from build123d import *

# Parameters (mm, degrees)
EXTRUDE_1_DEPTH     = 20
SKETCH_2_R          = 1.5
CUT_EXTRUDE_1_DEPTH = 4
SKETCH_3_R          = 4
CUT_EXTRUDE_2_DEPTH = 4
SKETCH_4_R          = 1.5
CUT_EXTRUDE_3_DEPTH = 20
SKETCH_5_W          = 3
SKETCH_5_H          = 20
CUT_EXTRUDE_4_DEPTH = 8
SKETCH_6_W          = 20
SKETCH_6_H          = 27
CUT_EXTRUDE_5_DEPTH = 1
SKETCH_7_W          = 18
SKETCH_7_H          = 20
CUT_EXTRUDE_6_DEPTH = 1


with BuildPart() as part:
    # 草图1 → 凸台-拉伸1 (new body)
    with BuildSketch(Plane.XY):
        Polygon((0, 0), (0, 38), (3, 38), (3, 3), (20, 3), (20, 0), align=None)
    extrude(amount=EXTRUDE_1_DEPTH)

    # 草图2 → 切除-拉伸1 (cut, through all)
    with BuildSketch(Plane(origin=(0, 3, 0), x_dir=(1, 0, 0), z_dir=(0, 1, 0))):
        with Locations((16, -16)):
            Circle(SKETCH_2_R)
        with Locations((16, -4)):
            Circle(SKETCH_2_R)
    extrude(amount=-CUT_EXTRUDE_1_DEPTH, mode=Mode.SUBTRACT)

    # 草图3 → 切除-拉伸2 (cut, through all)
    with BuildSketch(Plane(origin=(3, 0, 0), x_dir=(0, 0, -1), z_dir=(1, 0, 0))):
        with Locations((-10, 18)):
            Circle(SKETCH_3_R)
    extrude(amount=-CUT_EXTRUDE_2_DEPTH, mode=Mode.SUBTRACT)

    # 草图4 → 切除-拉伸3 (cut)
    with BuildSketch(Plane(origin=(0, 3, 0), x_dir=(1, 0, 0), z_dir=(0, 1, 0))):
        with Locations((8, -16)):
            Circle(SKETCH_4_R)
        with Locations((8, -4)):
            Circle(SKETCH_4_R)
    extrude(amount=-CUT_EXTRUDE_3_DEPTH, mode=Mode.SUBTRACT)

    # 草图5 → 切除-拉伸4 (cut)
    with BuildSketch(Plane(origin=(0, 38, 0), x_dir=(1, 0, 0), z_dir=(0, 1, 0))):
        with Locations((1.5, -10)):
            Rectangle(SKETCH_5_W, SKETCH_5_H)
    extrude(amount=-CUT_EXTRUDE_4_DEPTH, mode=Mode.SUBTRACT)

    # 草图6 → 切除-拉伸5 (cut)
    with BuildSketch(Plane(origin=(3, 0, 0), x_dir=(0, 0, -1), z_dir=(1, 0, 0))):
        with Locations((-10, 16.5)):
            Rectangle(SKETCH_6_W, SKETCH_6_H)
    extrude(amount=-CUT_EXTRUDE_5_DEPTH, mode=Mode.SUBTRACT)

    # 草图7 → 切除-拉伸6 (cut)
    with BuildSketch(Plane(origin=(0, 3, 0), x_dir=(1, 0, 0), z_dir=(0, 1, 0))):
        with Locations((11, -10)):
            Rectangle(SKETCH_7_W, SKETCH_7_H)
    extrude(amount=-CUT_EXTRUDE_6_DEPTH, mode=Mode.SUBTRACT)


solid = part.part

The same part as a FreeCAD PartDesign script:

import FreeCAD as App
import Part
import Sketcher


def add_polygon(sketch, points):
    """Adds a closed chain of lines whose ends are joined by coincident constraints."""
    first, n = sketch.GeometryCount, len(points)
    for a, b in zip(points, points[1:] + points[:1]):
        sketch.addGeometry(Part.LineSegment(App.Vector(*a, 0), App.Vector(*b, 0)), False)
    for i in range(n):
        sketch.addConstraint(Sketcher.Constraint("Coincident", first + i, 2, first + (i + 1) % n, 1))

doc = App.newDocument("Part")
body = doc.addObject("PartDesign::Body", "Body")

sketch1 = body.newObject("Sketcher::SketchObject", "Sketch")
sketch1.AttachmentSupport = (doc.getObject("XY_Plane"), [""])
sketch1.MapMode = "FlatFace"
add_polygon(sketch1, [(0, 38), (0, 0), (20, 0), (20, 3), (3, 3), (3, 38)])
sketch1.addConstraint([
    Sketcher.Constraint("Vertical", 0),
    Sketcher.Constraint("Horizontal", 1),
    Sketcher.Constraint("Vertical", 2),
    Sketcher.Constraint("Horizontal", 3),
    Sketcher.Constraint("Vertical", 4),
    Sketcher.Constraint("Horizontal", 5),
    Sketcher.Constraint("Coincident", 0, 2, -1, 1),
    Sketcher.Constraint("Equal", 5, 2),
    Sketcher.Constraint("DistanceX", 1, 1, 1, 2, 20.0),
    Sketcher.Constraint("DistanceX", 3, 2, 3, 1, 17.0),
    Sketcher.Constraint("DistanceY", 0, 2, 0, 1, 38.0),
])
pad1 = body.newObject("PartDesign::Pad", "Pad")
pad1.Profile = sketch1
pad1.Length = 20

sketch2 = body.newObject("Sketcher::SketchObject", "Sketch001")
sketch2.AttachmentSupport = (doc.getObject("XZ_Plane"), [""])
sketch2.MapMode = "FlatFace"
sketch2.AttachmentOffset = App.Placement(App.Vector(0, 0, -3), App.Rotation())
sketch2.addGeometry([
    Part.Circle(App.Vector(16, 16, 0), App.Vector(0, 0, 1), 1.5),
    Part.Circle(App.Vector(16, 4, 0), App.Vector(0, 0, 1), 1.5),
], False)
sketch2.addConstraint([
    Sketcher.Constraint("Equal", 0, 1),
    Sketcher.Constraint("Vertical", 0, 3, 1, 3),
    Sketcher.Constraint("Diameter", 0, 3.0),
    Sketcher.Constraint("DistanceX", -1, 1, 0, 3, 16.0),
    Sketcher.Constraint("DistanceY", -1, 1, 0, 3, 16.0),
    Sketcher.Constraint("DistanceY", -1, 1, 1, 3, 4.0),
])
pocket1 = body.newObject("PartDesign::Pocket", "Pocket")
pocket1.Profile = sketch2
pocket1.Type = "ThroughAll"
pocket1.Reversed = True

sketch3 = body.newObject("Sketcher::SketchObject", "Sketch002")
sketch3.AttachmentSupport = (doc.getObject("YZ_Plane"), [""])
sketch3.MapMode = "FlatFace"
sketch3.AttachmentOffset = App.Placement(App.Vector(0, 0, 3), App.Rotation())
sketch3.addGeometry(Part.Circle(App.Vector(18, 10, 0), App.Vector(0, 0, 1), 4), False)
sketch3.addConstraint([
    Sketcher.Constraint("Diameter", 0, 8.0),
    Sketcher.Constraint("DistanceX", -1, 1, 0, 3, 18.0),
    Sketcher.Constraint("DistanceY", -1, 1, 0, 3, 10.0),
])
pocket2 = body.newObject("PartDesign::Pocket", "Pocket001")
pocket2.Profile = sketch3
pocket2.Type = "ThroughAll"

sketch4 = body.newObject("Sketcher::SketchObject", "Sketch003")
sketch4.AttachmentSupport = (doc.getObject("XZ_Plane"), [""])
sketch4.MapMode = "FlatFace"
sketch4.AttachmentOffset = App.Placement(App.Vector(0, 0, -3), App.Rotation())
sketch4.addGeometry([
    Part.Circle(App.Vector(8, 16, 0), App.Vector(0, 0, 1), 1.5),
    Part.Circle(App.Vector(8, 4, 0), App.Vector(0, 0, 1), 1.5),
], False)
sketch4.addConstraint([
    Sketcher.Constraint("Equal", 0, 1),
    Sketcher.Constraint("Vertical", 0, 3, 1, 3),
    Sketcher.Constraint("Diameter", 0, 3.0),
    Sketcher.Constraint("DistanceX", -1, 1, 0, 3, 8.0),
    Sketcher.Constraint("DistanceY", -1, 1, 0, 3, 16.0),
    Sketcher.Constraint("DistanceY", -1, 1, 1, 3, 4.0),
])
pocket3 = body.newObject("PartDesign::Pocket", "Pocket002")
pocket3.Profile = sketch4
pocket3.Length = 20
pocket3.Reversed = True

sketch5 = body.newObject("Sketcher::SketchObject", "Sketch004")
sketch5.AttachmentSupport = (doc.getObject("XZ_Plane"), [""])
sketch5.MapMode = "FlatFace"
sketch5.AttachmentOffset = App.Placement(App.Vector(0, 0, -38), App.Rotation())
add_polygon(sketch5, [(0, 0), (0, 20), (3, 20), (3, 0)])
sketch5.addConstraint([
    Sketcher.Constraint("Vertical", 0),
    Sketcher.Constraint("Horizontal", 1),
    Sketcher.Constraint("Vertical", 2),
    Sketcher.Constraint("Horizontal", 3),
    Sketcher.Constraint("Coincident", 3, 2, -1, 1),
    Sketcher.Constraint("DistanceX", 1, 1, 1, 2, 3.0),
    Sketcher.Constraint("DistanceY", 0, 1, 0, 2, 20.0),
])
pocket4 = body.newObject("PartDesign::Pocket", "Pocket003")
pocket4.Profile = sketch5
pocket4.Length = 8
pocket4.Reversed = True

sketch6 = body.newObject("Sketcher::SketchObject", "Sketch005")
sketch6.AttachmentSupport = (doc.getObject("YZ_Plane"), [""])
sketch6.MapMode = "FlatFace"
sketch6.AttachmentOffset = App.Placement(App.Vector(0, 0, 3), App.Rotation())
add_polygon(sketch6, [(30, 20), (3, 20), (3, 0), (30, 0)])
sketch6.addConstraint([
    Sketcher.Constraint("Horizontal", 0),
    Sketcher.Constraint("Vertical", 1),
    Sketcher.Constraint("Horizontal", 2),
    Sketcher.Constraint("Vertical", 3),
    Sketcher.Constraint("PointOnObject", 1, 2, -1),
    Sketcher.Constraint("DistanceX", 0, 2, 0, 1, 27.0),
    Sketcher.Constraint("DistanceY", 1, 2, 1, 1, 20.0),
    Sketcher.Constraint("DistanceX", -1, 1, 0, 2, 3.0),
])
pocket5 = body.newObject("PartDesign::Pocket", "Pocket004")
pocket5.Profile = sketch6
pocket5.Length = 1

sketch7 = body.newObject("Sketcher::SketchObject", "Sketch006")
sketch7.AttachmentSupport = (doc.getObject("XZ_Plane"), [""])
sketch7.MapMode = "FlatFace"
sketch7.AttachmentOffset = App.Placement(App.Vector(0, 0, -3), App.Rotation())
add_polygon(sketch7, [(2, 0), (2, 20), (20, 20), (20, 0)])
sketch7.addConstraint([
    Sketcher.Constraint("Vertical", 0),
    Sketcher.Constraint("Horizontal", 1),
    Sketcher.Constraint("Vertical", 2),
    Sketcher.Constraint("Horizontal", 3),
    Sketcher.Constraint("PointOnObject", 2, 2, -1),
    Sketcher.Constraint("DistanceX", 1, 1, 1, 2, 18.0),
    Sketcher.Constraint("DistanceY", 0, 1, 0, 2, 20.0),
    Sketcher.Constraint("DistanceX", -1, 1, 0, 2, 2.0),
])
pocket6 = body.newObject("PartDesign::Pocket", "Pocket005")
pocket6.Profile = sketch7
pocket6.Length = 1
pocket6.Reversed = True

doc.recompute()
